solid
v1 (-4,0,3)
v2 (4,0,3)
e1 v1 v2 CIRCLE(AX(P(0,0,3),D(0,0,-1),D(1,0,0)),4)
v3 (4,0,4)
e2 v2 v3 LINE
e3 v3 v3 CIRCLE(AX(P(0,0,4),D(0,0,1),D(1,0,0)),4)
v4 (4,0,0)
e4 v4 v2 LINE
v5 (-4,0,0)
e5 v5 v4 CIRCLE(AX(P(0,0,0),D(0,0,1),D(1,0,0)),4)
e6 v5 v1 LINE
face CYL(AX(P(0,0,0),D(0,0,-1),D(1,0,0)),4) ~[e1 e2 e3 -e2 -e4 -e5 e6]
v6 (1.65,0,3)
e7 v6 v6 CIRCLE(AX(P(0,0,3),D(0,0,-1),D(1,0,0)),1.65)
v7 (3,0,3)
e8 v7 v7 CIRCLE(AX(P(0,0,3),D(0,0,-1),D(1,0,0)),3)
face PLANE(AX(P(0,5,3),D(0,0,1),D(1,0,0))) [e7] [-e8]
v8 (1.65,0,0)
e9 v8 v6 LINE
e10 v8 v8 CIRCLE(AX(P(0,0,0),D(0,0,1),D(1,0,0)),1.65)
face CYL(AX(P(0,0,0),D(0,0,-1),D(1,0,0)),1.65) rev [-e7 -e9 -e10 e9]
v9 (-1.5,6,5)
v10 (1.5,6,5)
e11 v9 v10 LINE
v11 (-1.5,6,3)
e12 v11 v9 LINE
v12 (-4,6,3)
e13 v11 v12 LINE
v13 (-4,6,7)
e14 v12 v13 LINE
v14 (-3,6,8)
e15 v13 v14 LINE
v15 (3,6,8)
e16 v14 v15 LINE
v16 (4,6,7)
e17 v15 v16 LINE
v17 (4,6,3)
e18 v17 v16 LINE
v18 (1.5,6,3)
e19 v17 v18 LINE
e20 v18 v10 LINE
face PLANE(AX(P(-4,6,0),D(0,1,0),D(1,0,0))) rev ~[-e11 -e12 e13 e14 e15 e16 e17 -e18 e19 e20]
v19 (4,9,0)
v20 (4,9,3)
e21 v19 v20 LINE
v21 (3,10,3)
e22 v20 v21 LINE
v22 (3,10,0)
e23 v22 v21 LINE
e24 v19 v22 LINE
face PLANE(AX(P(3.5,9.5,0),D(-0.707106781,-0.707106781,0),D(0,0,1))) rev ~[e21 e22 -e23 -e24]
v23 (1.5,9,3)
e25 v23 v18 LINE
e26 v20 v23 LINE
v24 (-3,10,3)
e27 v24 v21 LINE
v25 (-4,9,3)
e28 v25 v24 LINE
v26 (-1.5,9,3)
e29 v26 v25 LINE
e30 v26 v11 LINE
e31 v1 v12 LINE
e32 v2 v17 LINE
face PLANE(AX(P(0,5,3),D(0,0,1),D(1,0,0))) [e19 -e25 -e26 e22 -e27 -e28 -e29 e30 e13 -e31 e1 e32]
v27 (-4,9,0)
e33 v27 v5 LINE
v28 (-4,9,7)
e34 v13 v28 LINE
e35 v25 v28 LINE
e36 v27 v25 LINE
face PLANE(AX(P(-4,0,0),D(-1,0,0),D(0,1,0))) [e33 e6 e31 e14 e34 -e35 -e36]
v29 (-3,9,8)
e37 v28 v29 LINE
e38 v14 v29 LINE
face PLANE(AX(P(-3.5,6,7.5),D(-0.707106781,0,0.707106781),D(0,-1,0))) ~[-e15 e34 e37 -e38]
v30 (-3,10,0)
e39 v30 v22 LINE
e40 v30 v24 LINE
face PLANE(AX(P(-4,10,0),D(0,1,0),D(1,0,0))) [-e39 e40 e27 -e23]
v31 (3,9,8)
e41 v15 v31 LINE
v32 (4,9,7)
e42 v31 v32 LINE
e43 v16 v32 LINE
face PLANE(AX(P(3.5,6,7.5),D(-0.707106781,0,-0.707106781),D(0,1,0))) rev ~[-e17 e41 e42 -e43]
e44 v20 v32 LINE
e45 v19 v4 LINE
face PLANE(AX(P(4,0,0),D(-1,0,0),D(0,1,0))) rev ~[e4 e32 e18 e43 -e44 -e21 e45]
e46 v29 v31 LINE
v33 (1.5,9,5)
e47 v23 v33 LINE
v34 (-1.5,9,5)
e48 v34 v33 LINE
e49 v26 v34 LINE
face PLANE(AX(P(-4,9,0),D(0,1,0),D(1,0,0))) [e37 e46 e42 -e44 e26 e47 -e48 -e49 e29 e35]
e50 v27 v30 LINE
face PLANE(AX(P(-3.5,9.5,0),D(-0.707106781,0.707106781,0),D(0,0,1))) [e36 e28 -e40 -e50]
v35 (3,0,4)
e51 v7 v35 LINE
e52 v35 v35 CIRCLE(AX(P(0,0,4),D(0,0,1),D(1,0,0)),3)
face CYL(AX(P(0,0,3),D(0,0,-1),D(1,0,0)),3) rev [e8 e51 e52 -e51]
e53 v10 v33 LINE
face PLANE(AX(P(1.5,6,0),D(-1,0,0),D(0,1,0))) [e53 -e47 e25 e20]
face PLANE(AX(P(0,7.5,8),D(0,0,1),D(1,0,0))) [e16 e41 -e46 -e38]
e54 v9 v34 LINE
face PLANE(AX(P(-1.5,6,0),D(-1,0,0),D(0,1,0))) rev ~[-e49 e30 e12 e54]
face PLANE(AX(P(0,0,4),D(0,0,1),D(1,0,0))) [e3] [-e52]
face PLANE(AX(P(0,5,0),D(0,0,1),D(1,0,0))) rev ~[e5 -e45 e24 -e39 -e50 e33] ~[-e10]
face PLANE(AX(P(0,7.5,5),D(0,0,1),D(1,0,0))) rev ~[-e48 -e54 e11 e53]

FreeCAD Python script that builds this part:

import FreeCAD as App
import Part
import Sketcher
from FreeCAD import Vector
Q = App.Units.Quantity


def edges_at(feature, points):
    """Names of the edges that pass closest to the given points."""
    edges = feature.Shape.Edges
    near = lambda p: min(range(len(edges)), key=lambda i: edges[i].distToShape(Part.Vertex(*p))[0])
    return sorted({f"Edge{near(p) + 1}" for p in points})


def add_polygon(sketch, points):
    """Adds a closed chain of lines whose ends are joined by coincident constraints."""
    first, n = sketch.GeometryCount, len(points)
    for a, b in zip(points, points[1:] + points[:1]):
        sketch.addGeometry(Part.LineSegment(App.Vector(*a, 0), App.Vector(*b, 0)), False)
    for i in range(n):
        sketch.addConstraint(Sketcher.Constraint("Coincident", first + i, 2, first + (i + 1) % n, 1))

doc = App.newDocument("Part")
params = doc.addObject("Spreadsheet::Sheet", "Params")
for row, (alias, value) in enumerate([
    ("sketch1_diameter", "3.3 mm"),
    ("pad1_length", "10 mm"),
    ("sketch2_width", "3 mm"),
    ("pad2_length", "5 mm"),
    ("sketch3_width", "8 mm"),
    ("sketch3_height", "3 mm"),
    ("pad3_length", "8 mm"),
    ("chamfer_size", "1 mm"),
    ("sketch4_diameter", "6 mm"),
    ("pad4_length", "1 mm"),
    ("sketch5_diameter", "8 mm"),
    ("pad5_length", "4 mm"),
    ("sketch6_width", "8 mm"),
    ("sketch6_height", "10 mm"),
    ("pad6_length", "3 mm"),
    ("chamfer2_size", "1 mm"),
], start=1):
    params.set(f"A{row}", alias)
    params.set(f"B{row}", "=" + value)
    params.setAlias(f"B{row}", alias)

body = doc.addObject("PartDesign::Body", "Body")

# Sketch on XY plane
sketch1 = body.newObject("Sketcher::SketchObject", "Sketch")
sketch1.AttachmentSupport = (doc.getObject("XY_Plane"), [""])
sketch1.MapMode = "FlatFace"
sketch1.addGeometry(Part.Circle(Vector(0, 0, 0), Vector(0, 0, 1), 1.6), False)
sketch1.addConstraint([
    Sketcher.Constraint("Coincident", 0, 3, -1, 1),
    Sketcher.Constraint("Diameter", 0, Q("3.3 mm")),
])
sketch1.setExpression("Constraints[1]", "Params.sketch1_diameter")
pad1 = body.newObject("PartDesign::Pad", "Pad")
pad1.Profile = sketch1
pad1.setExpression("Length", "Params.pad1_length")
body2 = doc.addObject("PartDesign::Body", "Body001")

# Sketch on XY plane
sketch2 = body2.newObject("Sketcher::SketchObject", "Sketch001")
sketch2.AttachmentSupport = (doc.getObject("XY_Plane001"), [""])
sketch2.MapMode = "FlatFace"
add_polygon(sketch2, [(-1.5, 9), (-1.5, 6), (1.5, 6), (1.5, 9)])  # lines 0-3
sketch2.addConstraint([
    Sketcher.Constraint("Vertical", 0),
    Sketcher.Constraint("Horizontal", 1),
    Sketcher.Constraint("Vertical", 2),
    Sketcher.Constraint("Horizontal", 3),
    Sketcher.Constraint("Equal", 3, 0),
    Sketcher.Constraint("DistanceX", 1, 1, 1, 2, Q("3 mm")),
    Sketcher.Constraint("DistanceY", -1, 1, 0, 2, Q("6 mm")),
    Sketcher.Constraint("DistanceX", 0, 2, -1, 1, Q("1.5 mm")),
])
sketch2.setExpression("Constraints[9]", "Params.sketch2_width")
pad2 = body2.newObject("PartDesign::Pad", "Pad001")
pad2.Profile = sketch2
pad2.setExpression("Length", "Params.pad2_length")
body3 = doc.addObject("PartDesign::Body", "Body002")

# Sketch on XY plane
sketch3 = body3.newObject("Sketcher::SketchObject", "Sketch002")
sketch3.AttachmentSupport = (doc.getObject("XY_Plane002"), [""])
sketch3.MapMode = "FlatFace"
add_polygon(sketch3, [(-4, 9), (-4, 6), (4, 6), (4, 9)])  # lines 0-3
sketch3.addConstraint([
    Sketcher.Constraint("Vertical", 0),
    Sketcher.Constraint("Horizontal", 1),
    Sketcher.Constraint("Vertical", 2),
    Sketcher.Constraint("Horizontal", 3),
    Sketcher.Constraint("DistanceX", 1, 1, 1, 2, Q("8 mm")),
    Sketcher.Constraint("DistanceY", 0, 2, 0, 1, Q("3 mm")),
    Sketcher.Constraint("DistanceX", 0, 2, -1, 1, Q("4 mm")),
    Sketcher.Constraint("DistanceY", -1, 1, 0, 2, Q("6 mm")),
])
sketch3.setExpression("Constraints[8]", "Params.sketch3_width")
sketch3.setExpression("Constraints[9]", "Params.sketch3_height")
pad3 = body3.newObject("PartDesign::Pad", "Pad002")
pad3.Profile = sketch3
pad3.setExpression("Length", "Params.pad3_length")
doc.recompute()

boolean = body3.newObject("PartDesign::Boolean", "Boolean")
boolean.Type = "Cut"
boolean.addObjects([body2])
doc.recompute()

chamfer = body3.newObject("PartDesign::Chamfer", "Chamfer")
chamfer.Base = (boolean, edges_at(boolean, [(-4, 7.5, 8), (4, 7.5, 8)]))
chamfer.setExpression("Size", "Params.chamfer_size")
body4 = doc.addObject("PartDesign::Body", "Body003")

# Sketch on XY plane
sketch4 = body4.newObject("Sketcher::SketchObject", "Sketch003")
sketch4.AttachmentSupport = (doc.getObject("XY_Plane003"), [""])
sketch4.MapMode = "FlatFace"
sketch4.AttachmentOffset = App.Placement(Vector(0, 0, 3), App.Rotation())
sketch4.addGeometry(Part.Circle(Vector(0, 0, 0), Vector(0, 0, 1), 3), False)
sketch4.addConstraint([
    Sketcher.Constraint("Coincident", 0, 3, -1, 1),
    Sketcher.Constraint("Diameter", 0, Q("6 mm")),
])
sketch4.setExpression("Constraints[1]", "Params.sketch4_diameter")
pad4 = body4.newObject("PartDesign::Pad", "Pad003")
pad4.Profile = sketch4
pad4.setExpression("Length", "Params.pad4_length")
body5 = doc.addObject("PartDesign::Body", "Body004")

# Sketch on XY plane
sketch5 = body5.newObject("Sketcher::SketchObject", "Sketch004")
sketch5.AttachmentSupport = (doc.getObject("XY_Plane004"), [""])
sketch5.MapMode = "FlatFace"
sketch5.addGeometry(Part.Circle(Vector(0, 0, 0), Vector(0, 0, 1), 4), False)
sketch5.addConstraint([
    Sketcher.Constraint("Coincident", 0, 3, -1, 1),
    Sketcher.Constraint("Diameter", 0, Q("8 mm")),
])
sketch5.setExpression("Constraints[1]", "Params.sketch5_diameter")
pad5 = body5.newObject("PartDesign::Pad", "Pad004")
pad5.Profile = sketch5
pad5.setExpression("Length", "Params.pad5_length")
doc.recompute()

boolean2 = body5.newObject("PartDesign::Boolean", "Boolean001")
boolean2.Type = "Cut"
boolean2.addObjects([body4])
body6 = doc.addObject("PartDesign::Body", "Body005")

# Sketch on XY plane
sketch6 = body6.newObject("Sketcher::SketchObject", "Sketch005")
sketch6.AttachmentSupport = (doc.getObject("XY_Plane005"), [""])
sketch6.MapMode = "FlatFace"
add_polygon(sketch6, [(-4, 10), (-4, 0), (4, 0), (4, 10)])  # lines 0-3
sketch6.addConstraint([
    Sketcher.Constraint("Vertical", 0),
    Sketcher.Constraint("Horizontal", 1),
    Sketcher.Constraint("Vertical", 2),
    Sketcher.Constraint("Horizontal", 3),
    Sketcher.Constraint("Symmetric", 0, 2, 1, 2, -1, 1),
    Sketcher.Constraint("DistanceX", 1, 1, 1, 2, Q("8 mm")),
    Sketcher.Constraint("DistanceY", 0, 2, 0, 1, Q("10 mm")),
])
sketch6.setExpression("Constraints[9]", "Params.sketch6_width")
sketch6.setExpression("Constraints[10]", "Params.sketch6_height")
pad6 = body6.newObject("PartDesign::Pad", "Pad005")
pad6.Profile = sketch6
pad6.setExpression("Length", "Params.pad6_length")
doc.recompute()

chamfer2 = body6.newObject("PartDesign::Chamfer", "Chamfer001")
chamfer2.Base = (pad6, edges_at(pad6, [(-4, 10, 1.5), (4, 10, 1.5)]))
chamfer2.setExpression("Size", "Params.chamfer2_size")
doc.recompute()

boolean3 = body6.newObject("PartDesign::Boolean", "Boolean002")
boolean3.Type = "Fuse"
boolean3.addObjects([body3])
doc.recompute()

boolean4 = body6.newObject("PartDesign::Boolean", "Boolean003")
boolean4.Type = "Fuse"
boolean4.addObjects([body5])
doc.recompute()

boolean5 = body6.newObject("PartDesign::Boolean", "Boolean004")
boolean5.Type = "Cut"
boolean5.addObjects([body])

doc.recompute()
